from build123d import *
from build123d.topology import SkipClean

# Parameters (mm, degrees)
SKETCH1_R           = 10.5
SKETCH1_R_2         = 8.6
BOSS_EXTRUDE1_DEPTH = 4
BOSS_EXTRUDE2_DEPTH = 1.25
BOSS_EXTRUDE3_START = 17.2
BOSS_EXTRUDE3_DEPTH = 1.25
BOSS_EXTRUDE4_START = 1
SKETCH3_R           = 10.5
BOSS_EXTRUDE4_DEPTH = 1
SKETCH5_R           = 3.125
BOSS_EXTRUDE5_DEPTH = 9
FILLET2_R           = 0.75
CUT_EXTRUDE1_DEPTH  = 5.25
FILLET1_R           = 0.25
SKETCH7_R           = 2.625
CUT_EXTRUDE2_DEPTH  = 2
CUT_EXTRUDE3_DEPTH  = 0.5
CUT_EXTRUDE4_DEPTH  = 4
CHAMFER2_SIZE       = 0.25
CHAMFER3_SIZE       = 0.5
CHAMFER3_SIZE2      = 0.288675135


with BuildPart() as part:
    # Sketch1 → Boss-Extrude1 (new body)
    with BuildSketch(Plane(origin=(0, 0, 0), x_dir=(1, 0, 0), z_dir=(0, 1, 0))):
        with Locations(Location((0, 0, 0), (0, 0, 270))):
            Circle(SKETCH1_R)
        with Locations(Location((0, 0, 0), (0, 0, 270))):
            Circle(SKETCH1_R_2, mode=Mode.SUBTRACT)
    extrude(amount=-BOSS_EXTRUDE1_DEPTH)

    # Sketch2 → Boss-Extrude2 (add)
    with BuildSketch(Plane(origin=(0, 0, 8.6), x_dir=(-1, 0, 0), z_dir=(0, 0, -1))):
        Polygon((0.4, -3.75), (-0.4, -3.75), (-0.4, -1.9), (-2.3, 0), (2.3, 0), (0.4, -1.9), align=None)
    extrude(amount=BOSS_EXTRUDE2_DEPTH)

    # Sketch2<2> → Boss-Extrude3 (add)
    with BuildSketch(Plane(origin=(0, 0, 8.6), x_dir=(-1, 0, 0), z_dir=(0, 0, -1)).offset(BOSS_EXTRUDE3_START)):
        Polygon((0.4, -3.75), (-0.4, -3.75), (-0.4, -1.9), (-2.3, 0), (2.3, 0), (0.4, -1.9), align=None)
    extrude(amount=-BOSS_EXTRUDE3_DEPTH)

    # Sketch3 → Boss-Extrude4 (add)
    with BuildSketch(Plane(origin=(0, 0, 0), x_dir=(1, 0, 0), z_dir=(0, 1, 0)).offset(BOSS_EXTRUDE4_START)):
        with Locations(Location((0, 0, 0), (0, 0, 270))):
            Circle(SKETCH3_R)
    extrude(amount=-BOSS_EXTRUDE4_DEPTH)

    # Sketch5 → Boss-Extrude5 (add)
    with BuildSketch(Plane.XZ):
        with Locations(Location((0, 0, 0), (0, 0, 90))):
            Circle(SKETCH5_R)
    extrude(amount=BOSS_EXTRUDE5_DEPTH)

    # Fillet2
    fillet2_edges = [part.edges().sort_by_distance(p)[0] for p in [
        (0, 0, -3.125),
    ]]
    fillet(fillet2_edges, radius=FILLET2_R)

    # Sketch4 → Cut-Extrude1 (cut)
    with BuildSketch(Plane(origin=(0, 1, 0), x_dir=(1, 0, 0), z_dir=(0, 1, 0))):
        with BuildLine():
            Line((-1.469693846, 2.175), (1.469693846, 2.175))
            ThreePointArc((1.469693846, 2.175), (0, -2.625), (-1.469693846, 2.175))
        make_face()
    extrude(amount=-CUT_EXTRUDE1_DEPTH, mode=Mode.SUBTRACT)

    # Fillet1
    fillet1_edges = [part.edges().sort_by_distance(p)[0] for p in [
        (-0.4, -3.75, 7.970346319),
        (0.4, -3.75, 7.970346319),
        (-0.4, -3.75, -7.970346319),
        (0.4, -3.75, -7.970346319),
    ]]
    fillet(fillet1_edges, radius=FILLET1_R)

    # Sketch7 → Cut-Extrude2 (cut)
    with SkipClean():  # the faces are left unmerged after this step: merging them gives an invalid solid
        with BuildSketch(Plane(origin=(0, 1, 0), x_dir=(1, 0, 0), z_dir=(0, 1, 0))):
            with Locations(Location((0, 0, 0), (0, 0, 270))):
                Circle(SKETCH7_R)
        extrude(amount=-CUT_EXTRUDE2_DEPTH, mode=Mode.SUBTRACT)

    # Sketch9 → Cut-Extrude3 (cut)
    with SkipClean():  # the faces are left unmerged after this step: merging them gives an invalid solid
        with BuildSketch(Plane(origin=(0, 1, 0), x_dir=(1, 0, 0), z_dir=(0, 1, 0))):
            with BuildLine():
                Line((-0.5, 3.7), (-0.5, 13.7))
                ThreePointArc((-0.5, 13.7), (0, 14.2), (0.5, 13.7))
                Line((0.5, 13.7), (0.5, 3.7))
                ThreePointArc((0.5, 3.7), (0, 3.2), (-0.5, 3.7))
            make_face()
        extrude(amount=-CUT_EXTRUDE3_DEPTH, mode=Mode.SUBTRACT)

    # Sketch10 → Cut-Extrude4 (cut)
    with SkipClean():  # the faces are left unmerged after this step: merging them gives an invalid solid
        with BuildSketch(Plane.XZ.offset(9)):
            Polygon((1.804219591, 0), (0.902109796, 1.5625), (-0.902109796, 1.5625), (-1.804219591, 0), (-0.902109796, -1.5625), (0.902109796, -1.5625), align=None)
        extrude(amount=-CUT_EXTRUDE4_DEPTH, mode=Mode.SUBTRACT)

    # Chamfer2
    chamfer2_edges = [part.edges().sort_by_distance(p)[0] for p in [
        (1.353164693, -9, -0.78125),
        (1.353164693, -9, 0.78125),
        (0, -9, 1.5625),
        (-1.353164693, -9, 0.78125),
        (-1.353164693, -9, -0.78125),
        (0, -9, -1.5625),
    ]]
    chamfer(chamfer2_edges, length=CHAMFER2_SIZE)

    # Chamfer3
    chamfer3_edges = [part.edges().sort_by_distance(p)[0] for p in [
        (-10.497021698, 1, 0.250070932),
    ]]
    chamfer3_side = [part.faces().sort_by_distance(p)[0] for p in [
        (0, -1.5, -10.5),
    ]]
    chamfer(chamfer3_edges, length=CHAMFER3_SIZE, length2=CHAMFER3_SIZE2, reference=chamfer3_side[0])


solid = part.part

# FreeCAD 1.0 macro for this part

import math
import FreeCAD as App
import Part
import Sketcher
Q = App.Units.Quantity


def edges_at(feature, points):
    """Names of the edges that pass closest to the given points."""
    edges = feature.Shape.Edges
    near = lambda p: min(range(len(edges)), key=lambda i: edges[i].distToShape(Part.Vertex(*p))[0])
    return sorted({f"Edge{near(p) + 1}" for p in points})


def add_polygon(sketch, points):
    """Adds a closed chain of lines whose ends are joined by coincident constraints."""
    first, n = sketch.GeometryCount, len(points)
    for a, b in zip(points, points[1:] + points[:1]):
        sketch.addGeometry(Part.LineSegment(App.Vector(*a, 0), App.Vector(*b, 0)), False)
    for i in range(n):
        sketch.addConstraint(Sketcher.Constraint("Coincident", first + i, 2, first + (i + 1) % n, 1))

doc = App.newDocument("Part")
body = doc.addObject("PartDesign::Body", "Body")

# Sketch on XZ plane
sketch1 = body.newObject("Sketcher::SketchObject", "Sketch")
sketch1.AttachmentSupport = (doc.getObject("XZ_Plane"), [""])
sketch1.MapMode = "FlatFace"
sketch1.addGeometry([
    Part.Circle(App.Vector(0, 0, 0), App.Vector(0, 0, 1), 10),
    Part.Circle(App.Vector(0, 0, 0), App.Vector(0, 0, 1), 9),
], False)
sketch1.addConstraint([
    Sketcher.Constraint("Coincident", 0, 3, -1, 1),
    Sketcher.Constraint("Coincident", 1, 3, -1, 1),
    Sketcher.Constraint("Diameter", 0, Q("21 mm")),
    Sketcher.Constraint("Diameter", 1, Q("17.2 mm")),
])
pad1 = body.newObject("PartDesign::Pad", "Pad")
pad1.Profile = sketch1
pad1.Length = 4

# Sketch on XY plane
sketch2 = body.newObject("Sketcher::SketchObject", "Sketch001")
sketch2.AttachmentSupport = (doc.getObject("XY_Plane"), [""])
sketch2.MapMode = "FlatFace"
sketch2.AttachmentOffset = App.Placement(App.Vector(0, 0, 8.6), App.Rotation())
add_polygon(sketch2, [(0.4, -3.8), (-0.4, -3.8), (-0.4, -1.9), (-2.3, 0), (2.3, 0), (0.4, -1.9)])  # lines 0-5
sketch2.addConstraint([
    Sketcher.Constraint("Horizontal", 0),
    Sketcher.Constraint("Vertical", 1),
    Sketcher.Constraint("Horizontal", 3),
    Sketcher.Constraint("Vertical", 5),
    Sketcher.Constraint("Symmetric", 2, 2, 3, 2, -1, 1),
    Sketcher.Constraint("Symmetric", 1, 2, 4, 2, -2),
    Sketcher.Constraint("Perpendicular", 2, 4),
    Sketcher.Constraint("DistanceX", 0, 2, 0, 1, Q("0.8 mm")),
    Sketcher.Constraint("DistanceX", 3, 1, 3, 2, Q("4.6 mm")),
    Sketcher.Constraint("DistanceY", 1, 1, 1, 2, Q("1.85 mm")),
])
pad2 = body.newObject("PartDesign::Pad", "Pad001")
pad2.Profile = sketch2
pad2.Length = 1.25
pad2.Reversed = True

# Sketch on XY plane
sketch3 = body.newObject("Sketcher::SketchObject", "Sketch002")
sketch3.AttachmentSupport = (doc.getObject("XY_Plane"), [""])
sketch3.MapMode = "FlatFace"
sketch3.AttachmentOffset = App.Placement(App.Vector(0, 0, -8.6), App.Rotation())
add_polygon(sketch3, [(0.4, -3.8), (-0.4, -3.8), (-0.4, -1.9), (-2.3, 0), (2.3, 0), (0.4, -1.9)])  # lines 0-5
sketch3.addConstraint([
    Sketcher.Constraint("Horizontal", 0),
    Sketcher.Constraint("Vertical", 1),
    Sketcher.Constraint("Horizontal", 3),
    Sketcher.Constraint("Vertical", 5),
    Sketcher.Constraint("Symmetric", 2, 2, 3, 2, -1, 1),
    Sketcher.Constraint("Symmetric", 1, 2, 4, 2, -2),
    Sketcher.Constraint("Perpendicular", 2, 4),
    Sketcher.Constraint("DistanceX", 0, 2, 0, 1, Q("0.8 mm")),
    Sketcher.Constraint("DistanceX", 3, 1, 3, 2, Q("4.6 mm")),
    Sketcher.Constraint("DistanceY", 1, 1, 1, 2, Q("1.85 mm")),
])
pad3 = body.newObject("PartDesign::Pad", "Pad002")
pad3.Profile = sketch3
pad3.Length = 1.25

# Sketch on XZ plane
sketch4 = body.newObject("Sketcher::SketchObject", "Sketch003")
sketch4.AttachmentSupport = (doc.getObject("XZ_Plane"), [""])
sketch4.MapMode = "FlatFace"
sketch4.AttachmentOffset = App.Placement(App.Vector(0, 0, -1), App.Rotation())
sketch4.addGeometry(Part.Circle(App.Vector(0, 0, 0), App.Vector(0, 0, 1), 10), False)
sketch4.addConstraint([
    Sketcher.Constraint("Coincident", 0, 3, -1, 1),
    Sketcher.Constraint("Diameter", 0, Q("21 mm")),
])
pad4 = body.newObject("PartDesign::Pad", "Pad003")
pad4.Profile = sketch4
pad4.Length = 1

# Sketch on XZ plane
sketch5 = body.newObject("Sketcher::SketchObject", "Sketch004")
sketch5.AttachmentSupport = (doc.getObject("XZ_Plane"), [""])
sketch5.MapMode = "FlatFace"
sketch5.addGeometry(Part.Circle(App.Vector(0, 0, 0), App.Vector(0, 0, 1), 3.1), False)
sketch5.addConstraint([
    Sketcher.Constraint("Coincident", 0, 3, -1, 1),
    Sketcher.Constraint("Diameter", 0, Q("6.25 mm")),
])
pad5 = body.newObject("PartDesign::Pad", "Pad004")
pad5.Profile = sketch5
pad5.Length = 9
doc.recompute()

fillet = body.newObject("PartDesign::Fillet", "Fillet")
fillet.Base = (pad5, edges_at(pad5, [(0, 0, -3.125)]))
fillet.Radius = 0.75

# Sketch on XZ plane
sketch6 = body.newObject("Sketcher::SketchObject", "Sketch005")
sketch6.AttachmentSupport = (doc.getObject("XZ_Plane"), [""])
sketch6.MapMode = "FlatFace"
sketch6.AttachmentOffset = App.Placement(App.Vector(0, 0, -1), App.Rotation())
sketch6.addGeometry([
    Part.LineSegment(App.Vector(1.5, -2.2, 0), App.Vector(-1.5, -2.2, 0)),
    Part.ArcOfCircle(Part.Circle(App.Vector(0, 0, 0), App.Vector(0, 0, 1), 2.6), math.radians(-56), math.radians(236)),
], False)
sketch6.addConstraint([
    Sketcher.Constraint("Coincident", 0, 1, 1, 1),
    Sketcher.Constraint("Coincident", 1, 2, 0, 2),
    Sketcher.Constraint("Horizontal", 0),
    Sketcher.Constraint("Coincident", 1, 3, -1, 1),
    Sketcher.Constraint("Radius", 1, Q("2.625 mm")),
    Sketcher.Constraint("DistanceY", 0, 1, -1, 1, Q("2.175 mm")),
])
pocket1 = body.newObject("PartDesign::Pocket", "Pocket")
pocket1.Profile = sketch6
pocket1.Length = 5.25
pocket1.Reversed = True
doc.recompute()

fillet2 = body.newObject("PartDesign::Fillet", "Fillet001")
fillet2.Base = (pocket1, edges_at(pocket1, [
    (-0.4, -3.75, 7.97),
    (0.4, -3.75, 7.97),
    (-0.4, -3.75, -7.97),
    (0.4, -3.75, -7.97),
]))
fillet2.Radius = 0.25

# Sketch on XZ plane
sketch7 = body.newObject("Sketcher::SketchObject", "Sketch006")
sketch7.AttachmentSupport = (doc.getObject("XZ_Plane"), [""])
sketch7.MapMode = "FlatFace"
sketch7.AttachmentOffset = App.Placement(App.Vector(0, 0, -1), App.Rotation())
sketch7.addGeometry(Part.Circle(App.Vector(0, 0, 0), App.Vector(0, 0, 1), 2.6), False)
sketch7.addConstraint([
    Sketcher.Constraint("Coincident", 0, 3, -1, 1),
    Sketcher.Constraint("Diameter", 0, Q("5.25 mm")),
])
pocket2 = body.newObject("PartDesign::Pocket", "Pocket001")
pocket2.Profile = sketch7
pocket2.Length = 2
pocket2.Reversed = True

# Sketch on XZ plane
sketch8 = body.newObject("Sketcher::SketchObject", "Sketch007")
sketch8.AttachmentSupport = (doc.getObject("XZ_Plane"), [""])
sketch8.MapMode = "FlatFace"
sketch8.AttachmentOffset = App.Placement(App.Vector(0, 0, -1), App.Rotation())
sketch8.addGeometry([
    Part.LineSegment(App.Vector(-0.5, -13.7, 0), App.Vector(-0.5, -3.7, 0)),
    Part.ArcOfCircle(Part.Circle(App.Vector(0, -3.7, 0), App.Vector(0, 0, 1), 0.5), math.radians(0), math.radians(180)),
    Part.LineSegment(App.Vector(0.5, -3.7, 0), App.Vector(0.5, -13.7, 0)),
    Part.ArcOfCircle(Part.Circle(App.Vector(0, -13.7, 0), App.Vector(0, 0, 1), 0.5), math.radians(180), math.radians(360)),
], False)
sketch8.addConstraint([
    Sketcher.Constraint("Tangent", 0, 2, 1, 2),
    Sketcher.Constraint("Tangent", 1, 1, 2, 1),
    Sketcher.Constraint("Tangent", 2, 2, 3, 2),
    Sketcher.Constraint("Tangent", 3, 1, 0, 1),
    Sketcher.Constraint("Vertical", 0),
    Sketcher.Constraint("Vertical", 2),
    Sketcher.Constraint("PointOnObject", 1, 3, -2),
    Sketcher.Constraint("Radius", 1, Q("0.5 mm")),
    Sketcher.Constraint("DistanceY", 0, 1, 0, 2, Q("10 mm")),
    Sketcher.Constraint("DistanceY", 1, 3, -1, 1, Q("3.7 mm")),
])
pocket3 = body.newObject("PartDesign::Pocket", "Pocket002")
pocket3.Profile = sketch8
pocket3.Length = 0.5
pocket3.Reversed = True

# Sketch on XZ plane
sketch9 = body.newObject("Sketcher::SketchObject", "Sketch008")
sketch9.AttachmentSupport = (doc.getObject("XZ_Plane"), [""])
sketch9.MapMode = "FlatFace"
sketch9.AttachmentOffset = App.Placement(App.Vector(0, 0, 9), App.Rotation())
add_polygon(sketch9, [(1.8, 0), (0.9, 1.6), (-0.9, 1.6), (-1.8, 0), (-0.9, -1.6), (0.9, -1.6)])  # lines 0-5
sketch9.addConstraint([
    Sketcher.Constraint("Horizontal", 1),
    Sketcher.Constraint("Horizontal", 4),
    Sketcher.Constraint("Symmetric", 0, 2, 3, 2, -1, 1),
    Sketcher.Constraint("Symmetric", 2, 2, 5, 2, -1, 1),
    Sketcher.Constraint("PointOnObject", 2, 2, -1),
    Sketcher.Constraint("Parallel", 2, 5),
    Sketcher.Constraint("Vertical", 1, 2, 3, 2),
    Sketcher.Constraint("Angle", 0, Q("120 deg")),
    Sketcher.Constraint("DistanceY", 3, 2, 1, 2, Q("3.125 mm")),
    Sketcher.Constraint("DistanceX", 1, 2, 1, 1, Q("1.80422 mm")),
])
pocket4 = body.newObject("PartDesign::Pocket", "Pocket003")
pocket4.Profile = sketch9
pocket4.Length = 4
doc.recompute()

chamfer = body.newObject("PartDesign::Chamfer", "Chamfer")
chamfer.Base = (pocket4, edges_at(pocket4, [
    (1.353, -9, -0.781),
    (1.353, -9, 0.781),
    (0, -9, 1.562),
    (-1.353, -9, 0.781),
    (-1.353, -9, -0.781),
    (0, -9, -1.562),
]))
chamfer.Size = 0.25
doc.recompute()

chamfer2 = body.newObject("PartDesign::Chamfer", "Chamfer001")
chamfer2.Base = (chamfer, edges_at(chamfer, [(-10.497, 1, 0.25)]))
chamfer2.ChamferType = "Two distances"
chamfer2.Size = 0.5
chamfer2.Size2 = 0.288675

doc.recompute()
